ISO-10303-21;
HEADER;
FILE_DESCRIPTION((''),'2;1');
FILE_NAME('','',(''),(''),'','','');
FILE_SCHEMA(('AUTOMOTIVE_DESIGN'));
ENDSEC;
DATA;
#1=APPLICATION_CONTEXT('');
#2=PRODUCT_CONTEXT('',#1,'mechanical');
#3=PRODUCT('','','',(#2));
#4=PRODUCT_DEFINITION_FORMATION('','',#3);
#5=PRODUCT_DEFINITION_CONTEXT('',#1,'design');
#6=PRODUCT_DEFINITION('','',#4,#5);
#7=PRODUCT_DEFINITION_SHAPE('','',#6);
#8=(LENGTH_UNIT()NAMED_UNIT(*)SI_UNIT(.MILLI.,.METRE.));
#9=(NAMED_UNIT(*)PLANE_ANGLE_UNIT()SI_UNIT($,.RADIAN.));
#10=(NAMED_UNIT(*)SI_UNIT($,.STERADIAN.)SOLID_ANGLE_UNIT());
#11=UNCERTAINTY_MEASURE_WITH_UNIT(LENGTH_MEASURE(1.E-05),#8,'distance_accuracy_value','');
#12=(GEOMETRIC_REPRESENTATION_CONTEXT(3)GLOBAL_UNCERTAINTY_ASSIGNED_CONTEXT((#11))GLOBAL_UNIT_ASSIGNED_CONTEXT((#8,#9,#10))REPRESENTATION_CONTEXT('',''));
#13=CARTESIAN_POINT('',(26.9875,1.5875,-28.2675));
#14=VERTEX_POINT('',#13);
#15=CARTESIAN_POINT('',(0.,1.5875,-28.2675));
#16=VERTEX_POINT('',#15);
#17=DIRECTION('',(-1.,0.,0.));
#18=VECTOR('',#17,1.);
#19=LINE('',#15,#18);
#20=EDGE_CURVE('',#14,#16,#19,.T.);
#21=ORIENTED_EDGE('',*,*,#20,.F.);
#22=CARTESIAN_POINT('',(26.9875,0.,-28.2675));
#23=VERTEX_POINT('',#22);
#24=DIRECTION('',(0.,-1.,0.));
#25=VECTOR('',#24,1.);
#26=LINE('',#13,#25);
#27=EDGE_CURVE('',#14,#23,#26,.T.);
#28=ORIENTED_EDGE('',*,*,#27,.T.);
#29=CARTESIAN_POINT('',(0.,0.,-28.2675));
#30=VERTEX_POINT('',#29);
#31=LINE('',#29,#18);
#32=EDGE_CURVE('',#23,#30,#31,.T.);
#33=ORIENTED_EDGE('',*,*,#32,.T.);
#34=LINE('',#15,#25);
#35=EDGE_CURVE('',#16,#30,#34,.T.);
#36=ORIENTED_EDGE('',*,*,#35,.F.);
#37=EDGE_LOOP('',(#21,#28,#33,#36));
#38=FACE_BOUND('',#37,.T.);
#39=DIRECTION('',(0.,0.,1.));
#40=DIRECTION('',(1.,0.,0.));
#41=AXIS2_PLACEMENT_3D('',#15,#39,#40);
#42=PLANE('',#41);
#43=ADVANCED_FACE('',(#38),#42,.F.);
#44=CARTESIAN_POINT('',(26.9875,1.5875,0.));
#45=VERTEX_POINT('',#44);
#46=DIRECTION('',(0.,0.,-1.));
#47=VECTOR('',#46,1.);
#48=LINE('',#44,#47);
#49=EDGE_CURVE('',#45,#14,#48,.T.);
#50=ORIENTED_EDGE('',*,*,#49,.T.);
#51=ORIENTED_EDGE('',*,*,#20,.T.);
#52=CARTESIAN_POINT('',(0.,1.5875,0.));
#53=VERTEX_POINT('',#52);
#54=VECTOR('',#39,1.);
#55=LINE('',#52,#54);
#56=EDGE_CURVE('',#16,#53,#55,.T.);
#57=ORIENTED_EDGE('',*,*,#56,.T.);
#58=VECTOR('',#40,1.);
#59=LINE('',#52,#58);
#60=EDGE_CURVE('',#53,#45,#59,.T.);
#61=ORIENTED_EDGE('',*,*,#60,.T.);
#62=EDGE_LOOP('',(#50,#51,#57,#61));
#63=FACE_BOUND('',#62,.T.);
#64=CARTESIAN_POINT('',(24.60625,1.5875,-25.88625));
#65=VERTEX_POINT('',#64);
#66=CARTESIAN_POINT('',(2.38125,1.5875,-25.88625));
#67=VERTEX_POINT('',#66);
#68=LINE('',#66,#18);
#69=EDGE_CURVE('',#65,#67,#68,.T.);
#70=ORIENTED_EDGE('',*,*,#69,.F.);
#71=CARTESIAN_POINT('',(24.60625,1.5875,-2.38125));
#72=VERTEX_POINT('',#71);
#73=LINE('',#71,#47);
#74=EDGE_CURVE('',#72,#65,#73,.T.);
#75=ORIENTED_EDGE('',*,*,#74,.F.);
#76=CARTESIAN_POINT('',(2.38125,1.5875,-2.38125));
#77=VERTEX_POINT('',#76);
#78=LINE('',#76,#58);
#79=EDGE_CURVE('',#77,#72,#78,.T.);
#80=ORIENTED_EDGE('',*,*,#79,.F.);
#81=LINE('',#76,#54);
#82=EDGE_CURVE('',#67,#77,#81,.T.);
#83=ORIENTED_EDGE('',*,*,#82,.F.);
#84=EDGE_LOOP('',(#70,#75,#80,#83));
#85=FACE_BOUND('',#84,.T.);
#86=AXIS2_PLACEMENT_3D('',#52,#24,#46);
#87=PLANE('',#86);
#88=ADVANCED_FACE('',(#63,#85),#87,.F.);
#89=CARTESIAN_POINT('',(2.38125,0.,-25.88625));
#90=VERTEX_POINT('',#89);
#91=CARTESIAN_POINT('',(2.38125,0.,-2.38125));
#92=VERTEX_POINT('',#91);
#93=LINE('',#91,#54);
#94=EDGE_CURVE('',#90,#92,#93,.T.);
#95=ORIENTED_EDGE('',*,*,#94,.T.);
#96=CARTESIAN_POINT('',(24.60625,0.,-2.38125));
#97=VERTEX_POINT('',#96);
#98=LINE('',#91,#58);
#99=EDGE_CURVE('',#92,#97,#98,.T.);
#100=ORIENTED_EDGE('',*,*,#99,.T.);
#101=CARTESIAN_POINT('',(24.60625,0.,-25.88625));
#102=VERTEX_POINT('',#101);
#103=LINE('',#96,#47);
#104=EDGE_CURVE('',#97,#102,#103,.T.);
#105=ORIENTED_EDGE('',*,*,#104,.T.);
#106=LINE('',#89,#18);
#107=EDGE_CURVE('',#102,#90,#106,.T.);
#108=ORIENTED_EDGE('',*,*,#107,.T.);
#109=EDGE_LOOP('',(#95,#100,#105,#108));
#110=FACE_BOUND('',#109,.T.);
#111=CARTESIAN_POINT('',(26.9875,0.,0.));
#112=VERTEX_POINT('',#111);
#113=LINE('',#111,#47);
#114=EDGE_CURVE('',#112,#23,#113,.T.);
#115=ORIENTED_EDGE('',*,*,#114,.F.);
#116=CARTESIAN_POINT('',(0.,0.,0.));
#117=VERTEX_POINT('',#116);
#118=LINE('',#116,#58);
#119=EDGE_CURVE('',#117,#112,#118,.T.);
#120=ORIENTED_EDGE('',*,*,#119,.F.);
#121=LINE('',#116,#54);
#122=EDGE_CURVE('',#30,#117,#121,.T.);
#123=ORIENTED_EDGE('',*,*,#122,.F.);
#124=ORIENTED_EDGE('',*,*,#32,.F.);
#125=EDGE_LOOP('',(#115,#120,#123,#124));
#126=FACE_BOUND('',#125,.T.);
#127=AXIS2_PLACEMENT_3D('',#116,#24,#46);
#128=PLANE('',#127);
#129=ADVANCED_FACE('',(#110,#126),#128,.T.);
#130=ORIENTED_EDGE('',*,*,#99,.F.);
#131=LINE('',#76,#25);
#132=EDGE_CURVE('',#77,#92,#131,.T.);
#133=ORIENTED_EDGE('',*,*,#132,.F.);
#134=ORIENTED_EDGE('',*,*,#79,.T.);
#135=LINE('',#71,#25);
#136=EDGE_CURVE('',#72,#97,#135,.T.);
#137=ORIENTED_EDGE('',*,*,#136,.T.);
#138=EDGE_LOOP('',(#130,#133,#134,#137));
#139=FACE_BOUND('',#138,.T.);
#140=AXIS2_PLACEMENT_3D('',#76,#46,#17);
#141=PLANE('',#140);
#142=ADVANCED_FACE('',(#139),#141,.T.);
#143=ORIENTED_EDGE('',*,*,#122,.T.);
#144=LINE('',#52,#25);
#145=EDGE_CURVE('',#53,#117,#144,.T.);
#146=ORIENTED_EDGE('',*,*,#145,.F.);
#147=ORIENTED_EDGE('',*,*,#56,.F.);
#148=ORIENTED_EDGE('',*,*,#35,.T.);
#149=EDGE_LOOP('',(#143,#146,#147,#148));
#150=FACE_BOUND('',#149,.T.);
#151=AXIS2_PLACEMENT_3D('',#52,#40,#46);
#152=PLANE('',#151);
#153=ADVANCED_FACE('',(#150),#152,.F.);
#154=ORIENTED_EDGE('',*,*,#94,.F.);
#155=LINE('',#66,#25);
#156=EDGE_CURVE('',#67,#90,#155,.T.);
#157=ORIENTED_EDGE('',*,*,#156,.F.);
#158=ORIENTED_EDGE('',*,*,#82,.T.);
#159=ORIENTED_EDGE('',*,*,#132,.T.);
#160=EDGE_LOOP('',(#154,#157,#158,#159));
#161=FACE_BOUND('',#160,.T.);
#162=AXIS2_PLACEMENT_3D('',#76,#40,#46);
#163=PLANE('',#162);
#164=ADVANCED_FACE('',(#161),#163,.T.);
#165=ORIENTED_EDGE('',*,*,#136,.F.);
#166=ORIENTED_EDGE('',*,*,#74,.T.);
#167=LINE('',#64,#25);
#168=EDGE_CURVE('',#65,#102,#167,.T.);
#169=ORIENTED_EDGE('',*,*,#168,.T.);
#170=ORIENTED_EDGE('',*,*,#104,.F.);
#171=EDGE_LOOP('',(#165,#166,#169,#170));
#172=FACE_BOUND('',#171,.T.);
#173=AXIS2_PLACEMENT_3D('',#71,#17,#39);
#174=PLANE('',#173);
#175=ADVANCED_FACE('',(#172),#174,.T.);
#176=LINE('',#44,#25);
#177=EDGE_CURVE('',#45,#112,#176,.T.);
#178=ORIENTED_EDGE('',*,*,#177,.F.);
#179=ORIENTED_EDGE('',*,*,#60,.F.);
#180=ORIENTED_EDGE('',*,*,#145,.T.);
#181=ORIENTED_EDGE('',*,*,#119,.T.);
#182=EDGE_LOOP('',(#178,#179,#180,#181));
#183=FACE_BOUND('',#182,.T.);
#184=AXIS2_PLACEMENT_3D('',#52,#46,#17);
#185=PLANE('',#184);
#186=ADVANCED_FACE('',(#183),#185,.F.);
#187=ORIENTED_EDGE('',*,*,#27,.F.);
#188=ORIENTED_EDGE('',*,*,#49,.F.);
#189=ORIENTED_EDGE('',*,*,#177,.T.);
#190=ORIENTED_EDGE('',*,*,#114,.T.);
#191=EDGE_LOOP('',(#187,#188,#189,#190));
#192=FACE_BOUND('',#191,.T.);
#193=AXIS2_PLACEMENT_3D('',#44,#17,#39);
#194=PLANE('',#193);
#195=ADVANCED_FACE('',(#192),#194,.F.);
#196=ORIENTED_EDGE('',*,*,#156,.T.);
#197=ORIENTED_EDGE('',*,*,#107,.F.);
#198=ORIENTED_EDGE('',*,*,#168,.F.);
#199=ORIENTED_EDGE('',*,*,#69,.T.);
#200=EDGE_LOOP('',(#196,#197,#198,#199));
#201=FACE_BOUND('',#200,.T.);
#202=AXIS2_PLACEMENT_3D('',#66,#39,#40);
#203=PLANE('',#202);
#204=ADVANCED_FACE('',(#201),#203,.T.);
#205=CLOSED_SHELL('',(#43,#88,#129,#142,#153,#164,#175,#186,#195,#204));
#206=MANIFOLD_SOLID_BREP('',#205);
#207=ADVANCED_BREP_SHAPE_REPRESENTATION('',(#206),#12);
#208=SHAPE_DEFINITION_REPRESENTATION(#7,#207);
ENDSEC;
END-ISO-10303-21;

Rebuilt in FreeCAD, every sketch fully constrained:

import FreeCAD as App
import Part
import Sketcher
Q = App.Units.Quantity


def add_polygon(sketch, points):
    """Adds a closed chain of lines whose ends are joined by coincident constraints."""
    first, n = sketch.GeometryCount, len(points)
    for a, b in zip(points, points[1:] + points[:1]):
        sketch.addGeometry(Part.LineSegment(App.Vector(*a, 0), App.Vector(*b, 0)), False)
    for i in range(n):
        sketch.addConstraint(Sketcher.Constraint("Coincident", first + i, 2, first + (i + 1) % n, 1))

doc = App.newDocument("Part")
params = doc.addObject("Spreadsheet::Sheet", "Params")
for row, (alias, value) in enumerate([
    ("sketch1_width", "1.0625 in"),
    ("sketch1_width2", "0.875 in"),
    ("pad1_length", "0.0625 in"),
], start=1):
    params.set(f"A{row}", alias)
    params.set(f"B{row}", "=" + value)
    params.setAlias(f"B{row}", alias)

body = doc.addObject("PartDesign::Body", "Body")

# Sketch on XZ plane
sketch1 = body.newObject("Sketcher::SketchObject", "Sketch")
sketch1.AttachmentSupport = (doc.getObject("XZ_Plane"), [""])
sketch1.MapMode = "FlatFace"
add_polygon(sketch1, [(0, -28), (0, 0), (27, 0), (27, -28)])  # lines 0-3
add_polygon(sketch1, [(25, -2), (2, -2), (2, -26), (25, -26)])  # lines 4-7
sketch1.addConstraint([
    Sketcher.Constraint("Vertical", 0),
    Sketcher.Constraint("Horizontal", 1),
    Sketcher.Constraint("Vertical", 2),
    Sketcher.Constraint("Horizontal", 3),
    Sketcher.Constraint("Horizontal", 4),
    Sketcher.Constraint("Vertical", 5),
    Sketcher.Constraint("Horizontal", 6),
    Sketcher.Constraint("Vertical", 7),
    Sketcher.Constraint("Coincident", 0, 2, -1, 1),
    Sketcher.Constraint("DistanceX", 1, 1, 1, 2, Q("1.0625 in")),
    Sketcher.Constraint("DistanceX", 4, 2, 4, 1, Q("0.875 in")),
    Sketcher.Constraint("DistanceX", -1, 1, 4, 2, Q("0.09375 in")),
    Sketcher.Constraint("DistanceY", 4, 2, -1, 1, Q("0.09375 in")),
    Sketcher.Constraint("DistanceY", 3, 2, 5, 2, Q("0.09375 in")),
    Sketcher.Constraint("DistanceY", 0, 1, 0, 2, 28.2675),
])
sketch1.setExpression("Constraints[17]", "Params.sketch1_width")
sketch1.setExpression("Constraints[18]", "Params.sketch1_width2")
pad1 = body.newObject("PartDesign::Pad", "Pad")
pad1.Profile = sketch1
pad1.setExpression("Length", "Params.pad1_length")
pad1.Reversed = True

doc.recompute()
